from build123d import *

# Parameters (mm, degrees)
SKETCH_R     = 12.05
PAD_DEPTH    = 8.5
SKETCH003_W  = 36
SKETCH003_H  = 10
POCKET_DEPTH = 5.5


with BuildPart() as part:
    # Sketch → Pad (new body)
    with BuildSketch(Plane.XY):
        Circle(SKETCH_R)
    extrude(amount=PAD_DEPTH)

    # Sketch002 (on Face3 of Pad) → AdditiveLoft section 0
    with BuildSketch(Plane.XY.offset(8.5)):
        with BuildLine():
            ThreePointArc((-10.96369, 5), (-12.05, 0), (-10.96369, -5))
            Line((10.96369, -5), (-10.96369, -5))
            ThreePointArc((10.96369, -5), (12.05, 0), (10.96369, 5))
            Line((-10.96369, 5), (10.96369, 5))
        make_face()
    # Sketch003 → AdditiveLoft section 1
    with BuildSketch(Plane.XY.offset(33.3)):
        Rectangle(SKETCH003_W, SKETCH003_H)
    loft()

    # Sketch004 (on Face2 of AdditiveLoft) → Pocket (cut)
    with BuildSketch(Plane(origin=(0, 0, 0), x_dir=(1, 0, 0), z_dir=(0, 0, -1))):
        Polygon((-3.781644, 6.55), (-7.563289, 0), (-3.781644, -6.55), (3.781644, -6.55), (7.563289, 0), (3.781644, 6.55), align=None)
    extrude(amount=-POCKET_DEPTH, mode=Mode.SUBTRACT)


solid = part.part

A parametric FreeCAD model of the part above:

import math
import FreeCAD as App
import Part
import Sketcher

V = App.Vector
Q = App.Units.Quantity


def add_polygon(sketch, points):
    """Adds a closed chain of lines whose ends are joined by coincident constraints."""
    first, n = sketch.GeometryCount, len(points)
    for a, b in zip(points, points[1:] + points[:1]):
        sketch.addGeometry(Part.LineSegment(App.Vector(*a, 0), App.Vector(*b, 0)), False)
    for i in range(n):
        sketch.addConstraint(Sketcher.Constraint("Coincident", first + i, 2, first + (i + 1) % n, 1))

doc = App.newDocument("Part")
body = doc.addObject("PartDesign::Body", "Body")

sketch1 = body.newObject("Sketcher::SketchObject", "Sketch")
sketch1.AttachmentSupport = (doc.getObject("XY_Plane"), [""])
sketch1.MapMode = "FlatFace"
sketch1.addGeometry(Part.Circle(V(0, 0, 0), V(0, 0, 1), 12), False)
sketch1.addConstraint(Sketcher.Constraint("Coincident", 0, 3, -1, 1))
sketch1.addConstraint(Sketcher.Constraint("Diameter", 0, 24.1))
pad1 = body.newObject("PartDesign::Pad", "Pad")
pad1.Profile = sketch1
pad1.Length = 8.5

sketch2 = body.newObject("Sketcher::SketchObject", "Sketch001")
sketch2.AttachmentSupport = (doc.getObject("XY_Plane"), [""])
sketch2.MapMode = "FlatFace"
sketch2.AttachmentOffset = App.Placement(V(0, 0, 8.5), App.Rotation())
sketch2.addGeometry(Part.ArcOfCircle(Part.Circle(V(0, 0, 0), V(0, 0, 1), 12), math.radians(155), math.radians(205)), False)
sketch2.addGeometry(Part.LineSegment(V(-11, -5, 0), V(11, -5, 0)), False)
sketch2.addGeometry(Part.ArcOfCircle(Part.Circle(V(0, 0, 0), V(0, 0, 1), 12), math.radians(-25), math.radians(25)), False)
sketch2.addGeometry(Part.LineSegment(V(11, 5, 0), V(-11, 5, 0)), False)
sketch2.addConstraint(Sketcher.Constraint("Coincident", 0, 2, 1, 1))
sketch2.addConstraint(Sketcher.Constraint("Coincident", 1, 2, 2, 1))
sketch2.addConstraint(Sketcher.Constraint("Coincident", 2, 2, 3, 1))
sketch2.addConstraint(Sketcher.Constraint("Coincident", 3, 2, 0, 1))
sketch2.addConstraint(Sketcher.Constraint("Horizontal", 1))
sketch2.addConstraint(Sketcher.Constraint("Horizontal", 3))
sketch2.addConstraint(Sketcher.Constraint("Coincident", 0, 3, -1, 1))
sketch2.addConstraint(Sketcher.Constraint("Coincident", 2, 3, -1, 1))
sketch2.addConstraint(Sketcher.Constraint("Equal", 0, 2))
sketch2.addConstraint(Sketcher.Constraint("Vertical", 1, 2, 2, 2))
sketch2.addConstraint(Sketcher.Constraint("Radius", 0, 12.049999))
sketch2.addConstraint(Sketcher.Constraint("DistanceY", 0, 2, -1, 1, 5.0))

sketch3 = body.newObject("Sketcher::SketchObject", "Sketch002")
sketch3.AttachmentSupport = (doc.getObject("XY_Plane"), [""])
sketch3.MapMode = "FlatFace"
sketch3.AttachmentOffset = App.Placement(V(0, 0, 33.3), App.Rotation())
add_polygon(sketch3, [(-18, 5), (-18, -5), (18, -5), (18, 5)])
sketch3.addConstraint(Sketcher.Constraint("Vertical", 0))
sketch3.addConstraint(Sketcher.Constraint("Horizontal", 1))
sketch3.addConstraint(Sketcher.Constraint("Vertical", 2))
sketch3.addConstraint(Sketcher.Constraint("Horizontal", 3))
sketch3.addConstraint(Sketcher.Constraint("Symmetric", 0, 2, 2, 2, -1, 1))
sketch3.addConstraint(Sketcher.Constraint("DistanceX", 1, 1, 1, 2, 36.0))
sketch3.addConstraint(Sketcher.Constraint("DistanceY", 0, 2, 0, 1, 10.0))

additiveloft = body.newObject("PartDesign::AdditiveLoft", "AdditiveLoft")
additiveloft.Profile = sketch2
additiveloft.Sections = [sketch3]

sketch4 = body.newObject("Sketcher::SketchObject", "Sketch003")
sketch4.AttachmentSupport = (doc.getObject("XY_Plane"), [""])
sketch4.MapMode = "FlatFace"
add_polygon(sketch4, [(-4, -7), (-8, 0), (-4, 7), (4, 7), (8, 0), (4, -7)])
sketch4.addConstraint(Sketcher.Constraint("Horizontal", 2))
sketch4.addConstraint(Sketcher.Constraint("Horizontal", 5))
sketch4.addConstraint(Sketcher.Constraint("Symmetric", 0, 2, 3, 2, -1, 1))
sketch4.addConstraint(Sketcher.Constraint("Symmetric", 1, 2, 4, 2, -1, 1))
sketch4.addConstraint(Sketcher.Constraint("PointOnObject", 0, 2, -1))
sketch4.addConstraint(Sketcher.Constraint("Parallel", 0, 3))
sketch4.addConstraint(Sketcher.Constraint("Vertical", 2, 2, 4, 2))
sketch4.addConstraint(Sketcher.Constraint("Angle", 0, Q("120.000005 deg")))
sketch4.addConstraint(Sketcher.Constraint("DistanceY", 4, 2, 2, 2, 13.1))
sketch4.addConstraint(Sketcher.Constraint("DistanceX", 2, 1, 2, 2, 7.563288))
pocket1 = body.newObject("PartDesign::Pocket", "Pocket")
pocket1.Profile = sketch4
pocket1.Length = 5.5
pocket1.Reversed = True

doc.recompute()
